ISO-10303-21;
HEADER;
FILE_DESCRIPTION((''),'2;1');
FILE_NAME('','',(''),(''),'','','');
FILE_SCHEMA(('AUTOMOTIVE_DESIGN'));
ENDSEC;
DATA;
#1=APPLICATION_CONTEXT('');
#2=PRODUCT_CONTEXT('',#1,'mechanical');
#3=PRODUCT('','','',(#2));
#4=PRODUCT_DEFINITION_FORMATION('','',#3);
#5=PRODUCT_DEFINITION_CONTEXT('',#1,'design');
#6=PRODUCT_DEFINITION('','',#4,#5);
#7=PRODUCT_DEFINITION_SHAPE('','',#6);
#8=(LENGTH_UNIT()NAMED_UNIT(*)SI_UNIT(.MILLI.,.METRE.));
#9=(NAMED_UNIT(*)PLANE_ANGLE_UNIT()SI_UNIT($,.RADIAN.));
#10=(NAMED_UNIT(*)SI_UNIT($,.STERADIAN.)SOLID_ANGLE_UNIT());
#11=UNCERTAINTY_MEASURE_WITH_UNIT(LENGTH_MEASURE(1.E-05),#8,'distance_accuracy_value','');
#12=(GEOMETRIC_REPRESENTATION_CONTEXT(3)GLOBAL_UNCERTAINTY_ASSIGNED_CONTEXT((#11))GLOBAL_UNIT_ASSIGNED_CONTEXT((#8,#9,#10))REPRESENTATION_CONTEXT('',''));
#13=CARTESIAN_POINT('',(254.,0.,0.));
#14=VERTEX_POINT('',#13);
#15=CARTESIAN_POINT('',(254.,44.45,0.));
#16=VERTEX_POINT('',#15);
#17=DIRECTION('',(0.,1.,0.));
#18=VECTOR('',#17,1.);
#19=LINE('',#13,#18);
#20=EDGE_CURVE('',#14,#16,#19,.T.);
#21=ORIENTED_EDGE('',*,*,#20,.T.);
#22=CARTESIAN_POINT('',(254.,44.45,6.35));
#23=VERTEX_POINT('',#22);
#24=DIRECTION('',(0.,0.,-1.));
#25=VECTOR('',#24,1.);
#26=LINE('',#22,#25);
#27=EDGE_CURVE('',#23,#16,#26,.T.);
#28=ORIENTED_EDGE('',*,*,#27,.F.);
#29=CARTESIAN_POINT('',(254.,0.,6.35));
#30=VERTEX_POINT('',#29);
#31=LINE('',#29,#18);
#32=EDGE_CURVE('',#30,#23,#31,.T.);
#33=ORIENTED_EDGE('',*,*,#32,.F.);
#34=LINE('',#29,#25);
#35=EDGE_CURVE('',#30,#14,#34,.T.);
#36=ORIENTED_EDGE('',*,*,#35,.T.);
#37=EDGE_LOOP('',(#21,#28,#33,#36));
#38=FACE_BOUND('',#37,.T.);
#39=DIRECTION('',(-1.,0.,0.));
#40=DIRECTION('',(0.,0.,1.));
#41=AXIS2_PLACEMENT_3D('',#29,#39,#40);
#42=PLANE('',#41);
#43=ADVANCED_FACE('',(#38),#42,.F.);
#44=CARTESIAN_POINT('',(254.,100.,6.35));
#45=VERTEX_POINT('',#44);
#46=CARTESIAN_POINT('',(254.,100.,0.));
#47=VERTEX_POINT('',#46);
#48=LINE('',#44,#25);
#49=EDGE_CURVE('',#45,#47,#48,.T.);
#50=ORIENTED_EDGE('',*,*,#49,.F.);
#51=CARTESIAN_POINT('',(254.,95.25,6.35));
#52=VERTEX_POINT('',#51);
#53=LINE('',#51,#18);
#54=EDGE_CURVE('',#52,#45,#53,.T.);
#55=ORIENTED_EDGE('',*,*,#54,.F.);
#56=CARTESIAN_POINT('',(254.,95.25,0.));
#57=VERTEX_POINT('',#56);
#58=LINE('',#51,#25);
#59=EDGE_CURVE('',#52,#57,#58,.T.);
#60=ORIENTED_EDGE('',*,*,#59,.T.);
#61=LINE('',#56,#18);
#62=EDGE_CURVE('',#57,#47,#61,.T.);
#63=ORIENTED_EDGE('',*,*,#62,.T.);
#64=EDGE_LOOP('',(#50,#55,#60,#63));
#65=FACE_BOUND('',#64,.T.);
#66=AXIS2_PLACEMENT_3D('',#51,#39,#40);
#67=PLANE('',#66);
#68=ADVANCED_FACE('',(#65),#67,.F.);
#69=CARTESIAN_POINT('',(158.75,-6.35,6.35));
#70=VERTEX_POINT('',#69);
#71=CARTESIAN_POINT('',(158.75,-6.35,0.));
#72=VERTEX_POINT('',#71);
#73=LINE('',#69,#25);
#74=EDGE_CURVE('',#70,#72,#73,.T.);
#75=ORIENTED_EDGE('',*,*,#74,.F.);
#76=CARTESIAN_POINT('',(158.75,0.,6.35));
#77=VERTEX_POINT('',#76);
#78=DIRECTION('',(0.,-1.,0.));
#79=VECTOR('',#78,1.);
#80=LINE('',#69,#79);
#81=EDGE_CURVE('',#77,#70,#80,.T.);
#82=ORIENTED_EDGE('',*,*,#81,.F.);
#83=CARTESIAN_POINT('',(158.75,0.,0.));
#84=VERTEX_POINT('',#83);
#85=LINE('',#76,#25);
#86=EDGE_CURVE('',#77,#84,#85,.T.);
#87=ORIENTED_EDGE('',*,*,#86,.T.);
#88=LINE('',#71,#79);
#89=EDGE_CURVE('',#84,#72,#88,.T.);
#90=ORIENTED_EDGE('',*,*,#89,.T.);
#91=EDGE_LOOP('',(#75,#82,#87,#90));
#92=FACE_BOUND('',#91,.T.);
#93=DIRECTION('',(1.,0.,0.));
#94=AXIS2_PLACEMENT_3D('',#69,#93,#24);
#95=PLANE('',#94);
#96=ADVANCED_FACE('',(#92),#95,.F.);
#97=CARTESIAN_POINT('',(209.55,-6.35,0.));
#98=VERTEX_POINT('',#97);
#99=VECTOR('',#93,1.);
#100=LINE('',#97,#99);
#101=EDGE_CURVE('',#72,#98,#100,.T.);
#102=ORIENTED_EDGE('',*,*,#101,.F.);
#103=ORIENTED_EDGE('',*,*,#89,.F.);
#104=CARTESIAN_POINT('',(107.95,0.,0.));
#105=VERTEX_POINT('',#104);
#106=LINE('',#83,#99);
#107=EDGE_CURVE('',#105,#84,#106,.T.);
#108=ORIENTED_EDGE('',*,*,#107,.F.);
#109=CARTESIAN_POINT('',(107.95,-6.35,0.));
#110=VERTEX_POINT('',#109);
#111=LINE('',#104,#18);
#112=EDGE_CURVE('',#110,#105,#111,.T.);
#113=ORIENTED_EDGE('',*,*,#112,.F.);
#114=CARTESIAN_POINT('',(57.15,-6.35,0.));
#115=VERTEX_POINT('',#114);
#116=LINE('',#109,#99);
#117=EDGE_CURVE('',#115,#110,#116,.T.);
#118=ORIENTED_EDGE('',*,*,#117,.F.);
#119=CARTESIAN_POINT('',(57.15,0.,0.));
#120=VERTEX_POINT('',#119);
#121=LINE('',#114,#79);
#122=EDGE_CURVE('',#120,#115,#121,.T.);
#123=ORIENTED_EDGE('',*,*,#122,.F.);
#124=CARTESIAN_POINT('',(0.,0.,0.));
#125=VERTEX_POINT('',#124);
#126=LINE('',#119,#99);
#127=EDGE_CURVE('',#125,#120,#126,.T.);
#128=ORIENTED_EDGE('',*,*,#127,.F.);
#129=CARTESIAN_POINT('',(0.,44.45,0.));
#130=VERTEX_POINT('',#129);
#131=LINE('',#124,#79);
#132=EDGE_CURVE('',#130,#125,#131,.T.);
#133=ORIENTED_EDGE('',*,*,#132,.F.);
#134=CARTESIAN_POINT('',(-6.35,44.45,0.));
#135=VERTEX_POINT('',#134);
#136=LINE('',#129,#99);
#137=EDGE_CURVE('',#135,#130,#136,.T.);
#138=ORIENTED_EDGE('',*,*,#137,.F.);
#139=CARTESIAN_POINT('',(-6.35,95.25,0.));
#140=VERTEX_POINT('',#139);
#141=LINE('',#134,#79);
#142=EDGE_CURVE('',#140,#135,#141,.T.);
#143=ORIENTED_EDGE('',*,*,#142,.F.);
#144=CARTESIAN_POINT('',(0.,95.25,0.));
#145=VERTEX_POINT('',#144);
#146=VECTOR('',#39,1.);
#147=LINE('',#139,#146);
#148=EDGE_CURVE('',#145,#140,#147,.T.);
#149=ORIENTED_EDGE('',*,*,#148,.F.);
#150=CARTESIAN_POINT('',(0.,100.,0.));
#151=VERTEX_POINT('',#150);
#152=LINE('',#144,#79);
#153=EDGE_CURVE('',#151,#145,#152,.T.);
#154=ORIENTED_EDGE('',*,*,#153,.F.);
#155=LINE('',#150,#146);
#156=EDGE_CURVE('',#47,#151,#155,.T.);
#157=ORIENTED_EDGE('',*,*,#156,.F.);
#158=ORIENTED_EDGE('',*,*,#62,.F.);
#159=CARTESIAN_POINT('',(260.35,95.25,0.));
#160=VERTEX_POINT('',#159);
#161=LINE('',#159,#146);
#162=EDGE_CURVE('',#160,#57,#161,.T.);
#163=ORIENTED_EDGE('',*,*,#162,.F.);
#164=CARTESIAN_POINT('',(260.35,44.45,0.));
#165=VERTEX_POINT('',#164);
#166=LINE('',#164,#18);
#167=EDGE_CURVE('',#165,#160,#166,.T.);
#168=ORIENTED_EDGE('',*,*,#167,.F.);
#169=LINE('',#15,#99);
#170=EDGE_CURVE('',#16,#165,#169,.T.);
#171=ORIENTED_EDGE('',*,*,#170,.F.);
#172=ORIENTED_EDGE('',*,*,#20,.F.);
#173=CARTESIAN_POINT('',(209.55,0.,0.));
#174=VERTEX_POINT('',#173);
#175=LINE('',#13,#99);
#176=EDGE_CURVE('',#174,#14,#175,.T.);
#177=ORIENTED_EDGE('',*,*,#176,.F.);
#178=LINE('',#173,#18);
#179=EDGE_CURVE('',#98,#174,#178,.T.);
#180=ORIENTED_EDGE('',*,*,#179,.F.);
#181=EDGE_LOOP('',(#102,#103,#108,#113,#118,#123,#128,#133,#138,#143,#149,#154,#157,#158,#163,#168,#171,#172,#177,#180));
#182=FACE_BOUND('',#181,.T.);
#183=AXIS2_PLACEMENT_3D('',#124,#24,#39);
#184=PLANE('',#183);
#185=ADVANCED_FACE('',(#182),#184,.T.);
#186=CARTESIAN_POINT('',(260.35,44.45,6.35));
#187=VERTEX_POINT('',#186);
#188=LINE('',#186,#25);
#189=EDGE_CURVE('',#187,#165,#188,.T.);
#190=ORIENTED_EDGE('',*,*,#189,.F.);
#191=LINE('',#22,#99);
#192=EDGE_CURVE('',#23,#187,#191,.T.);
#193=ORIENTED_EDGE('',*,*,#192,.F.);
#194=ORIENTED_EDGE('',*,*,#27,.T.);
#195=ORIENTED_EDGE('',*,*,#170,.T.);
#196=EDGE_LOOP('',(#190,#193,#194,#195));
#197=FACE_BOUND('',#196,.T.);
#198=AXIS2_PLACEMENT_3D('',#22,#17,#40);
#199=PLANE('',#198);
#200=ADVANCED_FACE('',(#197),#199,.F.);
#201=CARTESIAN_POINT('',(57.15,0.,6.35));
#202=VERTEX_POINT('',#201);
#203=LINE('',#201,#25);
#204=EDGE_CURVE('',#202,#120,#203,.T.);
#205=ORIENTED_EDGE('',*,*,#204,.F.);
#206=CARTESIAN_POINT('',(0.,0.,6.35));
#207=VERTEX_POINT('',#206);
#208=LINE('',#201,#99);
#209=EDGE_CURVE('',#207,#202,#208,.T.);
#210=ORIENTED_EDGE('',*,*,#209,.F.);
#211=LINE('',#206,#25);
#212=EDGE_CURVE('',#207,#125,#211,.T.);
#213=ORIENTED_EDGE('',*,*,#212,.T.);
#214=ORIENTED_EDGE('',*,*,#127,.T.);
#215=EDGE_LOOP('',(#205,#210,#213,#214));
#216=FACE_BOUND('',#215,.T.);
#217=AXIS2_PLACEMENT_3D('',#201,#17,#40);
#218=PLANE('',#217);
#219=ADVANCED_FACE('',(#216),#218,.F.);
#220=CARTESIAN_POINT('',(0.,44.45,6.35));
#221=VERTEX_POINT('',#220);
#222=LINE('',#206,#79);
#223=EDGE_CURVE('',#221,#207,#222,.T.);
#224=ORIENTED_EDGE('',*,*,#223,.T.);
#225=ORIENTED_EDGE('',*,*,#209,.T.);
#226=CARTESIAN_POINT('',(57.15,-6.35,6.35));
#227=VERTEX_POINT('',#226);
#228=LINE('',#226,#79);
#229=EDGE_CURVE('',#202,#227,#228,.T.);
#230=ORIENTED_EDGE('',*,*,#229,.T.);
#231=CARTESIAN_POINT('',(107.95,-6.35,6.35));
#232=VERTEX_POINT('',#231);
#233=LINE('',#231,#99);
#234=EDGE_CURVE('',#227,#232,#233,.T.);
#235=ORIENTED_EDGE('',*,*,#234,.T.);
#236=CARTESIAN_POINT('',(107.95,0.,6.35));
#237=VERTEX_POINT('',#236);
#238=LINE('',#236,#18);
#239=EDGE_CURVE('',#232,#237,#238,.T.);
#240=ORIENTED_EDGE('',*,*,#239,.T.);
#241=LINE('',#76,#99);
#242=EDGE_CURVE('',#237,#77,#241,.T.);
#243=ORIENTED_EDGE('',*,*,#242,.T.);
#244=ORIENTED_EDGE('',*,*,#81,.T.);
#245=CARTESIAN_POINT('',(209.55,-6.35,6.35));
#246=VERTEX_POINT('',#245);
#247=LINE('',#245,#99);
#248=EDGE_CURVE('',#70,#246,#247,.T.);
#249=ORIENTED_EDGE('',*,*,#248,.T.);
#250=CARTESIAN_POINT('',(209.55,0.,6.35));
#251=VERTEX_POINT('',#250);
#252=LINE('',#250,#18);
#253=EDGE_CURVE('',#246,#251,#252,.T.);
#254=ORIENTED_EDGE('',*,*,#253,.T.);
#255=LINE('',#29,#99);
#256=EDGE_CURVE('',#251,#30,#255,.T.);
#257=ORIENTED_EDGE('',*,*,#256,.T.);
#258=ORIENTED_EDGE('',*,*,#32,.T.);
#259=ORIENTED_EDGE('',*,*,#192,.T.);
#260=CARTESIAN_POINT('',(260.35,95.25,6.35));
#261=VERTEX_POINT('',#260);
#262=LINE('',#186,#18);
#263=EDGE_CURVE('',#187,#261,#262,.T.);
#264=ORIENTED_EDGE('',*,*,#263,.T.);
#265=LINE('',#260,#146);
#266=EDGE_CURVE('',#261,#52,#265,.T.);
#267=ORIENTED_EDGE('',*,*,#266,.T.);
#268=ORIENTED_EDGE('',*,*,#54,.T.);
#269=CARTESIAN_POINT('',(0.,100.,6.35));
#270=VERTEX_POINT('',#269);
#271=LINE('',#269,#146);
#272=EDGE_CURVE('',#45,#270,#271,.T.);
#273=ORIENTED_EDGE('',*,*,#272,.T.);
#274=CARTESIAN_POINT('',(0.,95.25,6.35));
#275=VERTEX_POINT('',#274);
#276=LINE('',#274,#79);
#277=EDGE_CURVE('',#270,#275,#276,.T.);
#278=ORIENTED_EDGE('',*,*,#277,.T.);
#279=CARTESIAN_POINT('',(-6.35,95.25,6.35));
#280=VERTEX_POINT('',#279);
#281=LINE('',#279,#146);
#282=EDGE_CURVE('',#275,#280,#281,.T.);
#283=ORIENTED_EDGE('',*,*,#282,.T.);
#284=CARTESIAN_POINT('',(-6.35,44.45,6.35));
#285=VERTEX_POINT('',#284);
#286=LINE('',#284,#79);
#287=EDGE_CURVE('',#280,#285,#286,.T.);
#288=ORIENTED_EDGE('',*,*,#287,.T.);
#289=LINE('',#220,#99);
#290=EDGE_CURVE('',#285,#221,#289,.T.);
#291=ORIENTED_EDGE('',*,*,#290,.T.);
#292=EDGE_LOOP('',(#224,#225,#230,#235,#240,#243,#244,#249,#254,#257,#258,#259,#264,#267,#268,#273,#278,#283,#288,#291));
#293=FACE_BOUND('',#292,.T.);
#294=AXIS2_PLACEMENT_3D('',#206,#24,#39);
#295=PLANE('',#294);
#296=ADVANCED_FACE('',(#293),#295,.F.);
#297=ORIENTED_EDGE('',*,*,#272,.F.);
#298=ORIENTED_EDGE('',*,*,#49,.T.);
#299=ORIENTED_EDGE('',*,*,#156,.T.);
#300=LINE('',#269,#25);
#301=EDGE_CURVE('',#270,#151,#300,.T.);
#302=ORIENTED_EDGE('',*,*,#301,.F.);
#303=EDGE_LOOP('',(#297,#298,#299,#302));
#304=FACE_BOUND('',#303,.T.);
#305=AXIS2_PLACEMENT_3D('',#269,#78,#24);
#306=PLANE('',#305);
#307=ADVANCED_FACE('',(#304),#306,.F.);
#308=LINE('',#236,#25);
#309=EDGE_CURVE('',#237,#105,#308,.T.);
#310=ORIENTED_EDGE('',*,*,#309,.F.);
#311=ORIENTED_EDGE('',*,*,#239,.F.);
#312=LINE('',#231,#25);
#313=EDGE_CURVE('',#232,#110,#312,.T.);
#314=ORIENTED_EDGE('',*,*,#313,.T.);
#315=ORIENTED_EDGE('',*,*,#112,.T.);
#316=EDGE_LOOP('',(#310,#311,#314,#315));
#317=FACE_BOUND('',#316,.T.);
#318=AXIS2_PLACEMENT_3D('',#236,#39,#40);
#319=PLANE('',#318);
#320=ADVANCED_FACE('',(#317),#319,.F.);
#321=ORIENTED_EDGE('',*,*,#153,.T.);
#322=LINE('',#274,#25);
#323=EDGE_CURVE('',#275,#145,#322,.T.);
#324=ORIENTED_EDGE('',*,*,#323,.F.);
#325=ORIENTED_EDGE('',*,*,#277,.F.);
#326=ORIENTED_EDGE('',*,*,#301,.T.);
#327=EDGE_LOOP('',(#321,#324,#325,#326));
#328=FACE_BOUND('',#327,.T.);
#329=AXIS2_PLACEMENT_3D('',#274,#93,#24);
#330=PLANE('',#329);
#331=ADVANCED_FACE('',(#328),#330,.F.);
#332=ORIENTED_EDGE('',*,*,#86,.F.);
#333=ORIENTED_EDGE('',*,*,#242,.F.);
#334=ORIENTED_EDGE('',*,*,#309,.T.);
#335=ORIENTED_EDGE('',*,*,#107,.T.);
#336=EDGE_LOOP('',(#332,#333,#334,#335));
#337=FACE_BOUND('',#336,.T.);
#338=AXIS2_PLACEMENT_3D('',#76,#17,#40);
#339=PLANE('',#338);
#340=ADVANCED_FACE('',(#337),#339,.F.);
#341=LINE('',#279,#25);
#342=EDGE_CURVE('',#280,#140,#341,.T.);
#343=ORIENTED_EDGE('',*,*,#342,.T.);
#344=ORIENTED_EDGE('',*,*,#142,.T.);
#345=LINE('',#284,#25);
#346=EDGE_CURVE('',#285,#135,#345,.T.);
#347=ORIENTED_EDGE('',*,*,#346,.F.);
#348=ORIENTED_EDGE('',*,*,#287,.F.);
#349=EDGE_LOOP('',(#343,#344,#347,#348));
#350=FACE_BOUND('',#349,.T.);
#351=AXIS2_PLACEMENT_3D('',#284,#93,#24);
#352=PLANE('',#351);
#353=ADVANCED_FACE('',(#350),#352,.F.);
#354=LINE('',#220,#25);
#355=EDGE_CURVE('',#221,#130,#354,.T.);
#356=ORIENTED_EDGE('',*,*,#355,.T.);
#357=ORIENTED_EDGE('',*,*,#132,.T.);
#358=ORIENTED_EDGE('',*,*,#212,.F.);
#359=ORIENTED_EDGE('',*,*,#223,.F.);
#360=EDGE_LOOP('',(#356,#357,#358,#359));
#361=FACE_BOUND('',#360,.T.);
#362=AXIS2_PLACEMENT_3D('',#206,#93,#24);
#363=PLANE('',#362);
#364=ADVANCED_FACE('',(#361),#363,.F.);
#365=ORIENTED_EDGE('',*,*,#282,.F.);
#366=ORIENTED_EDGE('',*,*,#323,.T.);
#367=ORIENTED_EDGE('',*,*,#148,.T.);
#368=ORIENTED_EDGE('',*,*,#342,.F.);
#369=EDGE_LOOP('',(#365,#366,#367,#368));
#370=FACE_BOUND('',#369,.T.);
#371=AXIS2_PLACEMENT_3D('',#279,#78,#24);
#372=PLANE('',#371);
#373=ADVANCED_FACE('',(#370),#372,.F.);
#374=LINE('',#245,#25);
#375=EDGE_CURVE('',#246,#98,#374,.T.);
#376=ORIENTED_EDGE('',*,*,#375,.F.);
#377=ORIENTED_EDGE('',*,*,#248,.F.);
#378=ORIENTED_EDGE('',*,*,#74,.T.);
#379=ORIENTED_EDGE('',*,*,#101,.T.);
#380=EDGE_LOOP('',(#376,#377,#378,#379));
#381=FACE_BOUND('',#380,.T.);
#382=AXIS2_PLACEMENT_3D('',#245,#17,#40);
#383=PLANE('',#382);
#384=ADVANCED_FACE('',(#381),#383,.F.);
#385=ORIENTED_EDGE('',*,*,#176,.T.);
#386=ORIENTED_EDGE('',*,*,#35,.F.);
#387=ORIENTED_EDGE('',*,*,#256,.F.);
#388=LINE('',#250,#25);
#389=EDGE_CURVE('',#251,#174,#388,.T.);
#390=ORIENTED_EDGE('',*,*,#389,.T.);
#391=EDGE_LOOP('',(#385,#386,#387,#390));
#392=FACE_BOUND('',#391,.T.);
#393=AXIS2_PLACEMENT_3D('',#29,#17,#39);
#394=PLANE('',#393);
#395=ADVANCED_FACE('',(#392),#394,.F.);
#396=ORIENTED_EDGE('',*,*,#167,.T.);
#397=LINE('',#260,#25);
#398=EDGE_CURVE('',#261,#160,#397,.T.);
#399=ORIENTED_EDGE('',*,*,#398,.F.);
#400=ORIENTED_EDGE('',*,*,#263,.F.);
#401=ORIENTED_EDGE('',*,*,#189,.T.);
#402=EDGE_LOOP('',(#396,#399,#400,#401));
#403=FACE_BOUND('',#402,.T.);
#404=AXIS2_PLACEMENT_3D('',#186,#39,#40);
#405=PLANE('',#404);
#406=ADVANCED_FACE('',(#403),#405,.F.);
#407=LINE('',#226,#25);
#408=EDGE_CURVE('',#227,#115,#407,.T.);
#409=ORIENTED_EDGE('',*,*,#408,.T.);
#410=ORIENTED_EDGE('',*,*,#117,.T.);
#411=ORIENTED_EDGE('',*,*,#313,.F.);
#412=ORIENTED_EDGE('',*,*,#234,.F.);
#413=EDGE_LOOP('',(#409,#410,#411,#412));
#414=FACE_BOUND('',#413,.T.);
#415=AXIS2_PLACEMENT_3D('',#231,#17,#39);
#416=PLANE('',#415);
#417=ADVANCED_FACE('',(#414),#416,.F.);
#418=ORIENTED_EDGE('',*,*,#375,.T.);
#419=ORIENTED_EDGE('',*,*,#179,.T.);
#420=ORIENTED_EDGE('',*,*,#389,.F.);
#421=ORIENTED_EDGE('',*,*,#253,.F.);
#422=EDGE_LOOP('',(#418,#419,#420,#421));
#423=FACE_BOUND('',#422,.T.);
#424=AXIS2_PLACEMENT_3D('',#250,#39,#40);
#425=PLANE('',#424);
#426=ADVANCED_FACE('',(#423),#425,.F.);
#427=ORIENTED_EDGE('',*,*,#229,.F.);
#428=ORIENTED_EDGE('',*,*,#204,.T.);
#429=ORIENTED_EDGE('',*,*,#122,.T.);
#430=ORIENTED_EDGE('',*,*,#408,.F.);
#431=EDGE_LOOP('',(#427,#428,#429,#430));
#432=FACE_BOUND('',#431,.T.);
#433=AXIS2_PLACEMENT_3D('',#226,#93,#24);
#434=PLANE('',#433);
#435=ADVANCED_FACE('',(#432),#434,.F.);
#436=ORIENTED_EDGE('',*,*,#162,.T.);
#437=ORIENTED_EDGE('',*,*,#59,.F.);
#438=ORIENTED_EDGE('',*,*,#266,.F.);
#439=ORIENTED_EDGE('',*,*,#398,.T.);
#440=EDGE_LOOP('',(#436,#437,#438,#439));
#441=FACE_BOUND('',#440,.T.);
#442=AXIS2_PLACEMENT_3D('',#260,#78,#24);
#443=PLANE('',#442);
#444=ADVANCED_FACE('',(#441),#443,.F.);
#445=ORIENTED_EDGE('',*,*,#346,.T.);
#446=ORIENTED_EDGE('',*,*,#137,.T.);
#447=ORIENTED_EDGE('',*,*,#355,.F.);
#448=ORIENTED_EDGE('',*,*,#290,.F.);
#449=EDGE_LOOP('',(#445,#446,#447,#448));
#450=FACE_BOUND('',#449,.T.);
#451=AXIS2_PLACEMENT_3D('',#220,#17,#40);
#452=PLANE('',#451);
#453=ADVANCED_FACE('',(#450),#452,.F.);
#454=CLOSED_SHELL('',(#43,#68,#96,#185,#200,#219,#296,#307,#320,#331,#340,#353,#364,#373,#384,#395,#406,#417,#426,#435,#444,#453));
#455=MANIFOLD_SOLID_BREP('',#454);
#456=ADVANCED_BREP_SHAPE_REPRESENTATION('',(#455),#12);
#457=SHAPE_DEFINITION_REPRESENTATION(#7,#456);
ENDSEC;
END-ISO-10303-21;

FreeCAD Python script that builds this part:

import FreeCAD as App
import Part
import Sketcher
Q = App.Units.Quantity


def add_polygon(sketch, points):
    """Adds a closed chain of lines whose ends are joined by coincident constraints."""
    first, n = sketch.GeometryCount, len(points)
    for a, b in zip(points, points[1:] + points[:1]):
        sketch.addGeometry(Part.LineSegment(App.Vector(*a, 0), App.Vector(*b, 0)), False)
    for i in range(n):
        sketch.addConstraint(Sketcher.Constraint("Coincident", first + i, 2, first + (i + 1) % n, 1))

doc = App.newDocument("Part")
body = doc.addObject("PartDesign::Body", "Body")

# Sketch on XY plane
sketch1 = body.newObject("Sketcher::SketchObject", "Sketch")
sketch1.AttachmentSupport = (doc.getObject("XY_Plane"), [""])
sketch1.MapMode = "FlatFace"
add_polygon(sketch1, [(0, 44.5), (0, 0), (57.1, 0), (57.1, -6.3), (108, -6.3), (108, 0), (158.8, 0), (158.8, -6.3), (209.6, -6.3), (209.6, 0), (254, 0), (254, 44.5), (260.4, 44.5), (260.4, 95.2), (254, 95.2), (254, 100), (0, 100), (0, 95.2), (-6.3, 95.2), (-6.3, 44.5)])  # lines 0-19
sketch1.addConstraint(Sketcher.Constraint("Vertical", 0))
sketch1.addConstraint(Sketcher.Constraint("Horizontal", 1))
sketch1.addConstraint(Sketcher.Constraint("Vertical", 2))
sketch1.addConstraint(Sketcher.Constraint("Horizontal", 3))
sketch1.addConstraint(Sketcher.Constraint("Vertical", 4))
sketch1.addConstraint(Sketcher.Constraint("Horizontal", 5))
sketch1.addConstraint(Sketcher.Constraint("Vertical", 6))
sketch1.addConstraint(Sketcher.Constraint("Horizontal", 7))
sketch1.addConstraint(Sketcher.Constraint("Vertical", 8))
sketch1.addConstraint(Sketcher.Constraint("Horizontal", 9))
sketch1.addConstraint(Sketcher.Constraint("Vertical", 10))
sketch1.addConstraint(Sketcher.Constraint("Horizontal", 11))
sketch1.addConstraint(Sketcher.Constraint("Vertical", 12))
sketch1.addConstraint(Sketcher.Constraint("Horizontal", 13))
sketch1.addConstraint(Sketcher.Constraint("Vertical", 14))
sketch1.addConstraint(Sketcher.Constraint("Horizontal", 15))
sketch1.addConstraint(Sketcher.Constraint("Vertical", 16))
sketch1.addConstraint(Sketcher.Constraint("Horizontal", 17))
sketch1.addConstraint(Sketcher.Constraint("Vertical", 18))
sketch1.addConstraint(Sketcher.Constraint("Horizontal", 19))
sketch1.addConstraint(Sketcher.Constraint("Coincident", 0, 2, -1, 1))
sketch1.addConstraint(Sketcher.Constraint("PointOnObject", 4, 2, -1))
sketch1.addConstraint(Sketcher.Constraint("PointOnObject", 8, 2, -1))
sketch1.addConstraint(Sketcher.Constraint("PointOnObject", 15, 2, -2))
sketch1.addConstraint(Sketcher.Constraint("Horizontal", 3, 2, 6, 2))
sketch1.addConstraint(Sketcher.Constraint("Horizontal", 13, 2, 16, 2))
sketch1.addConstraint(Sketcher.Constraint("Horizontal", 11, 2, 18, 2))
sketch1.addConstraint(Sketcher.Constraint("Vertical", 10, 2, 13, 2))
sketch1.addConstraint(Sketcher.Constraint("Equal", 3, 5))
sketch1.addConstraint(Sketcher.Constraint("Equal", 5, 7))
sketch1.addConstraint(Sketcher.Constraint("Equal", 13, 17))
sketch1.addConstraint(Sketcher.Constraint("Equal", 9, 0))
sketch1.addConstraint(Sketcher.Constraint("Equal", 19, 2))
sketch1.addConstraint(Sketcher.Constraint("Equal", 7, 12))
sketch1.addConstraint(Sketcher.Constraint("DistanceX", 3, 1, 3, 2, Q("2 in")))
sketch1.addConstraint(Sketcher.Constraint("DistanceX", 15, 2, 15, 1, Q("10 in")))
sketch1.addConstraint(Sketcher.Constraint("DistanceY", 7, 2, 10, 2, Q("2 in")))
sketch1.addConstraint(Sketcher.Constraint("DistanceX", 1, 1, 1, 2, Q("2.25 in")))
sketch1.addConstraint(Sketcher.Constraint("DistanceY", 14, 1, 14, 2, 4.75))
pad1 = body.newObject("PartDesign::Pad", "Pad")
pad1.Profile = sketch1
pad1.Length = Q("0.25 in")

doc.recompute()
